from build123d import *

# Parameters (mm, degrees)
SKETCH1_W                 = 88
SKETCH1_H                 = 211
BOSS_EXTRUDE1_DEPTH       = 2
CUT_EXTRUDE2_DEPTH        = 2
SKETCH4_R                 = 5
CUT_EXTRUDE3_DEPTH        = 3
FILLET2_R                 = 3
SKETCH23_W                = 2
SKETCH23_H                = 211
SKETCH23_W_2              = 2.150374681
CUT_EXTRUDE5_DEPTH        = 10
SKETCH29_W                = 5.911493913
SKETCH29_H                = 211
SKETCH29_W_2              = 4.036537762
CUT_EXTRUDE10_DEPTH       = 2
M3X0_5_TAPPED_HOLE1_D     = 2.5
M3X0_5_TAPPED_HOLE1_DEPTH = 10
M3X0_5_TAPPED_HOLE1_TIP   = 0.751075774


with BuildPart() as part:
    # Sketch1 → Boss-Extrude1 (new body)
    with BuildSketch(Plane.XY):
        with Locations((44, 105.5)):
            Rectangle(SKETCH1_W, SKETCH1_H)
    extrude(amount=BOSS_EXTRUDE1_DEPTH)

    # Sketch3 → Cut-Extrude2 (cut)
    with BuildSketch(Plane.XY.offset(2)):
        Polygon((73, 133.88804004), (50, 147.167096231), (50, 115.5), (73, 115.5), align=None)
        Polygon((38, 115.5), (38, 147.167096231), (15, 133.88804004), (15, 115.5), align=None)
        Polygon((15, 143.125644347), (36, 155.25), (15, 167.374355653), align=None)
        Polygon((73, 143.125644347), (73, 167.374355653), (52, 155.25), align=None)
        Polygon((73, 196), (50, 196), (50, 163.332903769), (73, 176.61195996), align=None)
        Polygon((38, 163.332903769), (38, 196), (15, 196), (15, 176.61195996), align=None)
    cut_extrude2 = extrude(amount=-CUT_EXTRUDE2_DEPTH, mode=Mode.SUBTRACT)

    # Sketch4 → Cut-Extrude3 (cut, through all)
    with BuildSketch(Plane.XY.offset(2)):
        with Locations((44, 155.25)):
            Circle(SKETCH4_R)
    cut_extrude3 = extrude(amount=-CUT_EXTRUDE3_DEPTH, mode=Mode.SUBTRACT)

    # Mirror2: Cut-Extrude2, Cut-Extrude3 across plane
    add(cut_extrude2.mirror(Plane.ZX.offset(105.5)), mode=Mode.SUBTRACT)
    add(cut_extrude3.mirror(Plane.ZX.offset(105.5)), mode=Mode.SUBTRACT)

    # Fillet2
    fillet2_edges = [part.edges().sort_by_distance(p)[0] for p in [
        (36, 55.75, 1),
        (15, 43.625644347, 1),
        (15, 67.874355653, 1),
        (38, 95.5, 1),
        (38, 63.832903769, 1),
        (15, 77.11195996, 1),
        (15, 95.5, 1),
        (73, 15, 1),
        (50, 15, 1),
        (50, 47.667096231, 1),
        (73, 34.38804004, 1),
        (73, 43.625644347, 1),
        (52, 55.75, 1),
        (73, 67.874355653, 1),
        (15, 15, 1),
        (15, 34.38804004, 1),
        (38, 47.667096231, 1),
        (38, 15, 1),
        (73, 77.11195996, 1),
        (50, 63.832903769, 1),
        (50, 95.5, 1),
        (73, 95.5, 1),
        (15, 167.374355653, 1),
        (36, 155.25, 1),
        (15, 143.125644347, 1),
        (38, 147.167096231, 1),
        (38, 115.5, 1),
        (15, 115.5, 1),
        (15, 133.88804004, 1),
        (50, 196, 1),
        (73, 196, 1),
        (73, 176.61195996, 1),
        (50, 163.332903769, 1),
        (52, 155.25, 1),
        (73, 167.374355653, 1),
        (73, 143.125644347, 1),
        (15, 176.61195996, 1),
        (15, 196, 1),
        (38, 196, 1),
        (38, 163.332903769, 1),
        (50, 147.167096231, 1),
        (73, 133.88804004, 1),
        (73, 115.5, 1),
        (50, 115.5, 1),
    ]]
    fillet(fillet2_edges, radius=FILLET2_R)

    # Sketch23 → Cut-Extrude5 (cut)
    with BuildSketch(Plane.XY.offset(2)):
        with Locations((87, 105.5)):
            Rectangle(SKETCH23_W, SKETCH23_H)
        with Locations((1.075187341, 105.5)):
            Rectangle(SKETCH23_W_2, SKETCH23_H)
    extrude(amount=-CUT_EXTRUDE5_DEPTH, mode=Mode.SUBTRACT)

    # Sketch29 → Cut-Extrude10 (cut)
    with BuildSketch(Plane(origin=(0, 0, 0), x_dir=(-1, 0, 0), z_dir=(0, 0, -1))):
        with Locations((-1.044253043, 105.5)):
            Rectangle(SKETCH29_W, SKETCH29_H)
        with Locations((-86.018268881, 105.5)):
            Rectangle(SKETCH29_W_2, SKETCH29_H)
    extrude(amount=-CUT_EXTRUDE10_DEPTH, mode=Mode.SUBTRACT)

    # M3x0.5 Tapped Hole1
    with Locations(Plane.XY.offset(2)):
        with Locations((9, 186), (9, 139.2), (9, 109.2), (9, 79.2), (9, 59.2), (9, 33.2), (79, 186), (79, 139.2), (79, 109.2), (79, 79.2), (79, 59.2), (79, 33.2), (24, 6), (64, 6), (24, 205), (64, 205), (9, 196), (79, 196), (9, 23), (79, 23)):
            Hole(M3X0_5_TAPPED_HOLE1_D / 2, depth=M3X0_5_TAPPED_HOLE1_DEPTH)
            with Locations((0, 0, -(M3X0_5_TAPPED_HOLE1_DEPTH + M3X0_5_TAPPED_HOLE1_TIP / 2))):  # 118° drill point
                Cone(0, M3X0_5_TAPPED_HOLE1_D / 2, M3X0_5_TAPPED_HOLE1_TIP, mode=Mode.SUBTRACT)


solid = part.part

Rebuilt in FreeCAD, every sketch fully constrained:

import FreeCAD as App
import Part
import Sketcher
from FreeCAD import Vector
Q = App.Units.Quantity


def edges_at(feature, points):
    """Names of the edges that pass closest to the given points."""
    edges = feature.Shape.Edges
    near = lambda p: min(range(len(edges)), key=lambda i: edges[i].distToShape(Part.Vertex(*p))[0])
    return sorted({f"Edge{near(p) + 1}" for p in points})


def add_polygon(sketch, points):
    """Adds a closed chain of lines whose ends are joined by coincident constraints."""
    first, n = sketch.GeometryCount, len(points)
    for a, b in zip(points, points[1:] + points[:1]):
        sketch.addGeometry(Part.LineSegment(App.Vector(*a, 0), App.Vector(*b, 0)), False)
    for i in range(n):
        sketch.addConstraint(Sketcher.Constraint("Coincident", first + i, 2, first + (i + 1) % n, 1))

doc = App.newDocument("Part")
body = doc.addObject("PartDesign::Body", "Body")

# Sketch on XY plane
sketch1 = body.newObject("Sketcher::SketchObject", "Sketch")
sketch1.AttachmentSupport = (doc.getObject("XY_Plane"), [""])
sketch1.MapMode = "FlatFace"
add_polygon(sketch1, [(0, 211), (0, 0), (88, 0), (88, 211)])  # lines 0-3
sketch1.addConstraint(Sketcher.Constraint("Vertical", 0))
sketch1.addConstraint(Sketcher.Constraint("Horizontal", 1))
sketch1.addConstraint(Sketcher.Constraint("Vertical", 2))
sketch1.addConstraint(Sketcher.Constraint("Horizontal", 3))
sketch1.addConstraint(Sketcher.Constraint("Coincident", 0, 2, -1, 1))
sketch1.addConstraint(Sketcher.Constraint("DistanceX", 1, 1, 1, 2, Q("88 mm")))
sketch1.addConstraint(Sketcher.Constraint("DistanceY", 0, 2, 0, 1, Q("211 mm")))
pad1 = body.newObject("PartDesign::Pad", "Pad")
pad1.Profile = sketch1
pad1.Length = 2

# Sketch on XY plane
sketch2 = body.newObject("Sketcher::SketchObject", "Sketch001")
sketch2.AttachmentSupport = (doc.getObject("XY_Plane"), [""])
sketch2.MapMode = "FlatFace"
sketch2.AttachmentOffset = App.Placement(Vector(0, 0, 2), App.Rotation())
add_polygon(sketch2, [(73, 134), (50, 147), (50, 116), (73, 116)])  # lines 0-3
add_polygon(sketch2, [(38, 116), (38, 147), (15, 134), (15, 116)])  # lines 4-7
add_polygon(sketch2, [(15, 143), (36, 155), (15, 167)])  # lines 8-10
add_polygon(sketch2, [(73, 143), (73, 167), (52, 155)])  # lines 11-13
add_polygon(sketch2, [(73, 196), (50, 196), (50, 163), (73, 177)])  # lines 14-17
add_polygon(sketch2, [(38, 163), (38, 196), (15, 196), (15, 177)])  # lines 18-21
sketch2.addConstraint(Sketcher.Constraint("Vertical", 1))
sketch2.addConstraint(Sketcher.Constraint("Horizontal", 2))
sketch2.addConstraint(Sketcher.Constraint("Vertical", 3))
sketch2.addConstraint(Sketcher.Constraint("Vertical", 4))
sketch2.addConstraint(Sketcher.Constraint("Vertical", 6))
sketch2.addConstraint(Sketcher.Constraint("Horizontal", 7))
sketch2.addConstraint(Sketcher.Constraint("Vertical", 10))
sketch2.addConstraint(Sketcher.Constraint("Vertical", 11))
sketch2.addConstraint(Sketcher.Constraint("Horizontal", 14))
sketch2.addConstraint(Sketcher.Constraint("Vertical", 15))
sketch2.addConstraint(Sketcher.Constraint("Vertical", 17))
sketch2.addConstraint(Sketcher.Constraint("Vertical", 18))
sketch2.addConstraint(Sketcher.Constraint("Horizontal", 19))
sketch2.addConstraint(Sketcher.Constraint("Vertical", 20))
sketch2.addConstraint(Sketcher.Constraint("Parallel", 5, 8))
sketch2.addConstraint(Sketcher.Constraint("Parallel", 0, 9))
sketch2.addConstraint(Sketcher.Constraint("Parallel", 8, 12))
sketch2.addConstraint(Sketcher.Constraint("Parallel", 9, 13))
sketch2.addConstraint(Sketcher.Constraint("Parallel", 12, 16))
sketch2.addConstraint(Sketcher.Constraint("Parallel", 13, 21))
sketch2.addConstraint(Sketcher.Constraint("Horizontal", 0, 2, 4, 2))
sketch2.addConstraint(Sketcher.Constraint("Horizontal", 3, 2, 5, 2))
sketch2.addConstraint(Sketcher.Constraint("Horizontal", 2, 2, 6, 2))
sketch2.addConstraint(Sketcher.Constraint("Horizontal", 9, 2, 11, 2))
sketch2.addConstraint(Sketcher.Constraint("Horizontal", 8, 2, 12, 2))
sketch2.addConstraint(Sketcher.Constraint("Horizontal", 10, 2, 13, 2))
sketch2.addConstraint(Sketcher.Constraint("Horizontal", 17, 2, 18, 2))
sketch2.addConstraint(Sketcher.Constraint("Horizontal", 16, 2, 20, 2))
sketch2.addConstraint(Sketcher.Constraint("Horizontal", 15, 2, 21, 2))
sketch2.addConstraint(Sketcher.Constraint("Vertical", 6, 2, 9, 2))
sketch2.addConstraint(Sketcher.Constraint("Vertical", 3, 2, 11, 2))
sketch2.addConstraint(Sketcher.Constraint("Vertical", 1, 2, 14, 2))
sketch2.addConstraint(Sketcher.Constraint("Vertical", 13, 2, 16, 2))
sketch2.addConstraint(Sketcher.Constraint("Vertical", 7, 2, 18, 2))
sketch2.addConstraint(Sketcher.Constraint("DistanceX", 2, 1, 2, 2, Q("23 mm")))
sketch2.addConstraint(Sketcher.Constraint("Angle", 0, Q("150 deg")))
sketch2.addConstraint(Sketcher.Constraint("DistanceX", -1, 1, 0, 2, Q("50 mm")))
sketch2.addConstraint(Sketcher.Constraint("DistanceX", -1, 1, 4, 2, Q("38 mm")))
sketch2.addConstraint(Sketcher.Constraint("DistanceX", -1, 1, 8, 2, Q("36 mm")))
sketch2.addConstraint(Sketcher.Constraint("DistanceY", -1, 1, 14, 2, Q("196 mm")))
sketch2.addConstraint(Sketcher.Constraint("DistanceY", -1, 1, 1, 2, Q("115.5 mm")))
sketch2.addConstraint(Sketcher.Constraint("DistanceY", -1, 1, 8, 2, Q("155.25 mm")))
sketch2.addConstraint(Sketcher.Constraint("DistanceY", 3, 1, 3, 2, Q("18.38804 mm")))
sketch2.addConstraint(Sketcher.Constraint("DistanceY", 17, 1, 17, 2, Q("19.38804 mm")))
pocket1 = body.newObject("PartDesign::Pocket", "Pocket")
pocket1.Profile = sketch2
pocket1.Length = 2

# Sketch on XY plane
sketch3 = body.newObject("Sketcher::SketchObject", "Sketch002")
sketch3.AttachmentSupport = (doc.getObject("XY_Plane"), [""])
sketch3.MapMode = "FlatFace"
sketch3.AttachmentOffset = App.Placement(Vector(0, 0, 2), App.Rotation())
sketch3.addGeometry(Part.Circle(Vector(44, 155, 0), Vector(0, 0, 1), 5), False)
sketch3.addConstraint(Sketcher.Constraint("Diameter", 0, Q("10 mm")))
sketch3.addConstraint(Sketcher.Constraint("DistanceX", -1, 1, 0, 3, Q("44 mm")))
sketch3.addConstraint(Sketcher.Constraint("DistanceY", -1, 1, 0, 3, Q("155.25 mm")))
pocket2 = body.newObject("PartDesign::Pocket", "Pocket001")
pocket2.Profile = sketch3
pocket2.Type = "ThroughAll"
doc.recompute()

datumplane = body.newObject("PartDesign::Plane", "DatumPlane")
datumplane.AttachmentSupport = (doc.getObject("XZ_Plane"), [""])
datumplane.MapMode = "FlatFace"
datumplane.AttachmentOffset = App.Placement(Vector(0, 0, -105.5), App.Rotation())
mirrored = body.newObject("PartDesign::Mirrored", "Mirrored")
mirrored.Originals = [pocket1, pocket2]
mirrored.MirrorPlane = (datumplane, [""])
body.Tip = mirrored
doc.recompute()

fillet = body.newObject("PartDesign::Fillet", "Fillet")
fillet.Base = (mirrored, edges_at(mirrored, [
    (36, 55.75, 1),
    (15, 43.626, 1),
    (15, 67.874, 1),
    (38, 95.5, 1),
    (38, 63.833, 1),
    (15, 77.112, 1),
    (15, 95.5, 1),
    (73, 15, 1),
    (50, 15, 1),
    (50, 47.667, 1),
    (73, 34.388, 1),
    (73, 43.626, 1),
    (52, 55.75, 1),
    (73, 67.874, 1),
    (15, 15, 1),
    (15, 34.388, 1),
    (38, 47.667, 1),
    (38, 15, 1),
    (73, 77.112, 1),
    (50, 63.833, 1),
    (50, 95.5, 1),
    (73, 95.5, 1),
    (15, 167.374, 1),
    (36, 155.25, 1),
    (15, 143.126, 1),
    (38, 147.167, 1),
    (38, 115.5, 1),
    (15, 115.5, 1),
    (15, 133.888, 1),
    (50, 196, 1),
    (73, 196, 1),
    (73, 176.612, 1),
    (50, 163.333, 1),
    (52, 155.25, 1),
    (73, 167.374, 1),
    (73, 143.126, 1),
    (15, 176.612, 1),
    (15, 196, 1),
    (38, 196, 1),
    (38, 163.333, 1),
    (50, 147.167, 1),
    (73, 133.888, 1),
    (73, 115.5, 1),
    (50, 115.5, 1),
]))
fillet.Radius = 3

# Sketch on XY plane
sketch4 = body.newObject("Sketcher::SketchObject", "Sketch003")
sketch4.AttachmentSupport = (doc.getObject("XY_Plane"), [""])
sketch4.MapMode = "FlatFace"
sketch4.AttachmentOffset = App.Placement(Vector(0, 0, 2), App.Rotation())
add_polygon(sketch4, [(86, 211), (86, 0), (88, 0), (88, 211)])  # lines 0-3
add_polygon(sketch4, [(0, 211), (0, 0), (2.2, 0), (2.2, 211)])  # lines 4-7
sketch4.addConstraint(Sketcher.Constraint("Vertical", 0))
sketch4.addConstraint(Sketcher.Constraint("Horizontal", 1))
sketch4.addConstraint(Sketcher.Constraint("Vertical", 2))
sketch4.addConstraint(Sketcher.Constraint("Horizontal", 3))
sketch4.addConstraint(Sketcher.Constraint("Vertical", 4))
sketch4.addConstraint(Sketcher.Constraint("Horizontal", 5))
sketch4.addConstraint(Sketcher.Constraint("Vertical", 6))
sketch4.addConstraint(Sketcher.Constraint("Horizontal", 7))
sketch4.addConstraint(Sketcher.Constraint("Coincident", 4, 2, -1, 1))
sketch4.addConstraint(Sketcher.Constraint("PointOnObject", 0, 2, -1))
sketch4.addConstraint(Sketcher.Constraint("Horizontal", 3, 2, 6, 2))
sketch4.addConstraint(Sketcher.Constraint("DistanceX", 1, 1, 1, 2, Q("2 mm")))
sketch4.addConstraint(Sketcher.Constraint("DistanceY", 0, 2, 0, 1, Q("211 mm")))
sketch4.addConstraint(Sketcher.Constraint("DistanceX", -1, 1, 0, 2, Q("86 mm")))
sketch4.addConstraint(Sketcher.Constraint("DistanceX", 5, 1, 5, 2, Q("2.150375 mm")))
pocket3 = body.newObject("PartDesign::Pocket", "Pocket002")
pocket3.Profile = sketch4
pocket3.Length = 10

# Sketch on XY plane
sketch5 = body.newObject("Sketcher::SketchObject", "Sketch004")
sketch5.AttachmentSupport = (doc.getObject("XY_Plane"), [""])
sketch5.MapMode = "FlatFace"
add_polygon(sketch5, [(4, 211), (4, 0), (-1.9, 0), (-1.9, 211)])  # lines 0-3
add_polygon(sketch5, [(88, 211), (88, 0), (84, 0), (84, 211)])  # lines 4-7
sketch5.addConstraint(Sketcher.Constraint("Vertical", 0))
sketch5.addConstraint(Sketcher.Constraint("Horizontal", 1))
sketch5.addConstraint(Sketcher.Constraint("Vertical", 2))
sketch5.addConstraint(Sketcher.Constraint("Horizontal", 3))
sketch5.addConstraint(Sketcher.Constraint("Vertical", 4))
sketch5.addConstraint(Sketcher.Constraint("Horizontal", 5))
sketch5.addConstraint(Sketcher.Constraint("Vertical", 6))
sketch5.addConstraint(Sketcher.Constraint("Horizontal", 7))
sketch5.addConstraint(Sketcher.Constraint("PointOnObject", 0, 2, -1))
sketch5.addConstraint(Sketcher.Constraint("PointOnObject", 4, 2, -1))
sketch5.addConstraint(Sketcher.Constraint("Horizontal", 3, 2, 6, 2))
sketch5.addConstraint(Sketcher.Constraint("DistanceY", 0, 2, 0, 1, Q("211 mm")))
sketch5.addConstraint(Sketcher.Constraint("DistanceX", -1, 1, 0, 2, Q("4 mm")))
sketch5.addConstraint(Sketcher.Constraint("DistanceX", -1, 1, 5, 2, Q("84 mm")))
sketch5.addConstraint(Sketcher.Constraint("DistanceX", 1, 2, 1, 1, Q("5.911494 mm")))
sketch5.addConstraint(Sketcher.Constraint("DistanceX", 5, 2, 5, 1, Q("4.036538 mm")))
pocket4 = body.newObject("PartDesign::Pocket", "Pocket003")
pocket4.Profile = sketch5
pocket4.Length = 2
pocket4.Reversed = True

# Sketch on XY plane
sketch6 = body.newObject("Sketcher::SketchObject", "Sketch005")
sketch6.AttachmentSupport = (doc.getObject("XY_Plane"), [""])
sketch6.MapMode = "FlatFace"
sketch6.AttachmentOffset = App.Placement(Vector(0, 0, 2), App.Rotation())
sketch6.addGeometry(Part.Circle(Vector(9, 186, 0), Vector(0, 0, 1), 1.2), False)
sketch6.addGeometry(Part.Circle(Vector(9, 139.2, 0), Vector(0, 0, 1), 1.2), False)
sketch6.addGeometry(Part.Circle(Vector(9, 109.2, 0), Vector(0, 0, 1), 1.2), False)
sketch6.addGeometry(Part.Circle(Vector(9, 79.2, 0), Vector(0, 0, 1), 1.2), False)
sketch6.addGeometry(Part.Circle(Vector(9, 59.2, 0), Vector(0, 0, 1), 1.2), False)
sketch6.addGeometry(Part.Circle(Vector(9, 33.2, 0), Vector(0, 0, 1), 1.2), False)
sketch6.addGeometry(Part.Circle(Vector(79, 186, 0), Vector(0, 0, 1), 1.2), False)
sketch6.addGeometry(Part.Circle(Vector(79, 139.2, 0), Vector(0, 0, 1), 1.2), False)
sketch6.addGeometry(Part.Circle(Vector(79, 109.2, 0), Vector(0, 0, 1), 1.2), False)
sketch6.addGeometry(Part.Circle(Vector(79, 79.2, 0), Vector(0, 0, 1), 1.2), False)
sketch6.addGeometry(Part.Circle(Vector(79, 59.2, 0), Vector(0, 0, 1), 1.2), False)
sketch6.addGeometry(Part.Circle(Vector(79, 33.2, 0), Vector(0, 0, 1), 1.2), False)
sketch6.addGeometry(Part.Circle(Vector(24, 6, 0), Vector(0, 0, 1), 1.2), False)
sketch6.addGeometry(Part.Circle(Vector(64, 6, 0), Vector(0, 0, 1), 1.2), False)
sketch6.addGeometry(Part.Circle(Vector(24, 205, 0), Vector(0, 0, 1), 1.2), False)
sketch6.addGeometry(Part.Circle(Vector(64, 205, 0), Vector(0, 0, 1), 1.2), False)
sketch6.addGeometry(Part.Circle(Vector(9, 196, 0), Vector(0, 0, 1), 1.2), False)
sketch6.addGeometry(Part.Circle(Vector(79, 196, 0), Vector(0, 0, 1), 1.2), False)
sketch6.addGeometry(Part.Circle(Vector(9, 23, 0), Vector(0, 0, 1), 1.2), False)
sketch6.addGeometry(Part.Circle(Vector(79, 23, 0), Vector(0, 0, 1), 1.2), False)
sketch6.addConstraint(Sketcher.Constraint("Equal", 0, 1))
sketch6.addConstraint(Sketcher.Constraint("Equal", 1, 2))
sketch6.addConstraint(Sketcher.Constraint("Equal", 2, 3))
sketch6.addConstraint(Sketcher.Constraint("Equal", 3, 4))
sketch6.addConstraint(Sketcher.Constraint("Equal", 4, 5))
sketch6.addConstraint(Sketcher.Constraint("Equal", 5, 6))
sketch6.addConstraint(Sketcher.Constraint("Equal", 6, 7))
sketch6.addConstraint(Sketcher.Constraint("Equal", 7, 8))
sketch6.addConstraint(Sketcher.Constraint("Equal", 8, 9))
sketch6.addConstraint(Sketcher.Constraint("Equal", 9, 10))
sketch6.addConstraint(Sketcher.Constraint("Equal", 10, 11))
sketch6.addConstraint(Sketcher.Constraint("Equal", 11, 12))
sketch6.addConstraint(Sketcher.Constraint("Equal", 12, 13))
sketch6.addConstraint(Sketcher.Constraint("Equal", 13, 14))
sketch6.addConstraint(Sketcher.Constraint("Equal", 14, 15))
sketch6.addConstraint(Sketcher.Constraint("Equal", 15, 16))
sketch6.addConstraint(Sketcher.Constraint("Equal", 16, 17))
sketch6.addConstraint(Sketcher.Constraint("Equal", 17, 18))
sketch6.addConstraint(Sketcher.Constraint("Equal", 18, 19))
sketch6.addConstraint(Sketcher.Constraint("Horizontal", 0, 3, 6, 3))
sketch6.addConstraint(Sketcher.Constraint("Horizontal", 1, 3, 7, 3))
sketch6.addConstraint(Sketcher.Constraint("Horizontal", 2, 3, 8, 3))
sketch6.addConstraint(Sketcher.Constraint("Horizontal", 3, 3, 9, 3))
sketch6.addConstraint(Sketcher.Constraint("Horizontal", 4, 3, 10, 3))
sketch6.addConstraint(Sketcher.Constraint("Horizontal", 5, 3, 11, 3))
sketch6.addConstraint(Sketcher.Constraint("Horizontal", 12, 3, 13, 3))
sketch6.addConstraint(Sketcher.Constraint("Horizontal", 14, 3, 15, 3))
sketch6.addConstraint(Sketcher.Constraint("Horizontal", 16, 3, 17, 3))
sketch6.addConstraint(Sketcher.Constraint("Horizontal", 18, 3, 19, 3))
sketch6.addConstraint(Sketcher.Constraint("Vertical", 0, 3, 1, 3))
sketch6.addConstraint(Sketcher.Constraint("Vertical", 1, 3, 2, 3))
sketch6.addConstraint(Sketcher.Constraint("Vertical", 2, 3, 3, 3))
sketch6.addConstraint(Sketcher.Constraint("Vertical", 3, 3, 4, 3))
sketch6.addConstraint(Sketcher.Constraint("Vertical", 4, 3, 5, 3))
sketch6.addConstraint(Sketcher.Constraint("Vertical", 6, 3, 7, 3))
sketch6.addConstraint(Sketcher.Constraint("Vertical", 7, 3, 8, 3))
sketch6.addConstraint(Sketcher.Constraint("Vertical", 8, 3, 9, 3))
sketch6.addConstraint(Sketcher.Constraint("Vertical", 9, 3, 10, 3))
sketch6.addConstraint(Sketcher.Constraint("Vertical", 10, 3, 11, 3))
sketch6.addConstraint(Sketcher.Constraint("Vertical", 12, 3, 14, 3))
sketch6.addConstraint(Sketcher.Constraint("Vertical", 13, 3, 15, 3))
sketch6.addConstraint(Sketcher.Constraint("Vertical", 5, 3, 16, 3))
sketch6.addConstraint(Sketcher.Constraint("Vertical", 11, 3, 17, 3))
sketch6.addConstraint(Sketcher.Constraint("Vertical", 16, 3, 18, 3))
sketch6.addConstraint(Sketcher.Constraint("Vertical", 17, 3, 19, 3))
sketch6.addConstraint(Sketcher.Constraint("Diameter", 0, Q("2.5 mm")))
sketch6.addConstraint(Sketcher.Constraint("DistanceX", -1, 1, 0, 3, Q("9 mm")))
sketch6.addConstraint(Sketcher.Constraint("DistanceY", -1, 1, 0, 3, Q("186 mm")))
sketch6.addConstraint(Sketcher.Constraint("DistanceX", -1, 1, 6, 3, Q("79 mm")))
sketch6.addConstraint(Sketcher.Constraint("DistanceX", -1, 1, 12, 3, Q("24 mm")))
sketch6.addConstraint(Sketcher.Constraint("DistanceY", -1, 1, 12, 3, Q("6 mm")))
sketch6.addConstraint(Sketcher.Constraint("DistanceX", -1, 1, 13, 3, Q("64 mm")))
sketch6.addConstraint(Sketcher.Constraint("DistanceY", -1, 1, 14, 3, Q("205 mm")))
sketch6.addConstraint(Sketcher.Constraint("DistanceY", -1, 1, 16, 3, Q("196 mm")))
sketch6.addConstraint(Sketcher.Constraint("DistanceY", -1, 1, 18, 3, Q("23 mm")))
sketch6.addConstraint(Sketcher.Constraint("DistanceY", 2, 3, 1, 3, Q("30 mm")))
sketch6.addConstraint(Sketcher.Constraint("DistanceY", 3, 3, 2, 3, Q("30 mm")))
sketch6.addConstraint(Sketcher.Constraint("DistanceY", 4, 3, 3, 3, Q("20 mm")))
sketch6.addConstraint(Sketcher.Constraint("DistanceY", 5, 3, 4, 3, Q("26 mm")))
sketch6.addConstraint(Sketcher.Constraint("DistanceY", -1, 1, 1, 3, Q("139.2 mm")))
doc.recompute()
hole = body.newObject("PartDesign::Hole", "Hole")
hole.Profile = sketch6
hole.ThreadType = "None"
hole.Diameter = 2.5
hole.DepthType = "Dimension"
hole.Depth = 10
hole.DrillPoint = "Angled"
hole.DrillPointAngle = 118

doc.recompute()
